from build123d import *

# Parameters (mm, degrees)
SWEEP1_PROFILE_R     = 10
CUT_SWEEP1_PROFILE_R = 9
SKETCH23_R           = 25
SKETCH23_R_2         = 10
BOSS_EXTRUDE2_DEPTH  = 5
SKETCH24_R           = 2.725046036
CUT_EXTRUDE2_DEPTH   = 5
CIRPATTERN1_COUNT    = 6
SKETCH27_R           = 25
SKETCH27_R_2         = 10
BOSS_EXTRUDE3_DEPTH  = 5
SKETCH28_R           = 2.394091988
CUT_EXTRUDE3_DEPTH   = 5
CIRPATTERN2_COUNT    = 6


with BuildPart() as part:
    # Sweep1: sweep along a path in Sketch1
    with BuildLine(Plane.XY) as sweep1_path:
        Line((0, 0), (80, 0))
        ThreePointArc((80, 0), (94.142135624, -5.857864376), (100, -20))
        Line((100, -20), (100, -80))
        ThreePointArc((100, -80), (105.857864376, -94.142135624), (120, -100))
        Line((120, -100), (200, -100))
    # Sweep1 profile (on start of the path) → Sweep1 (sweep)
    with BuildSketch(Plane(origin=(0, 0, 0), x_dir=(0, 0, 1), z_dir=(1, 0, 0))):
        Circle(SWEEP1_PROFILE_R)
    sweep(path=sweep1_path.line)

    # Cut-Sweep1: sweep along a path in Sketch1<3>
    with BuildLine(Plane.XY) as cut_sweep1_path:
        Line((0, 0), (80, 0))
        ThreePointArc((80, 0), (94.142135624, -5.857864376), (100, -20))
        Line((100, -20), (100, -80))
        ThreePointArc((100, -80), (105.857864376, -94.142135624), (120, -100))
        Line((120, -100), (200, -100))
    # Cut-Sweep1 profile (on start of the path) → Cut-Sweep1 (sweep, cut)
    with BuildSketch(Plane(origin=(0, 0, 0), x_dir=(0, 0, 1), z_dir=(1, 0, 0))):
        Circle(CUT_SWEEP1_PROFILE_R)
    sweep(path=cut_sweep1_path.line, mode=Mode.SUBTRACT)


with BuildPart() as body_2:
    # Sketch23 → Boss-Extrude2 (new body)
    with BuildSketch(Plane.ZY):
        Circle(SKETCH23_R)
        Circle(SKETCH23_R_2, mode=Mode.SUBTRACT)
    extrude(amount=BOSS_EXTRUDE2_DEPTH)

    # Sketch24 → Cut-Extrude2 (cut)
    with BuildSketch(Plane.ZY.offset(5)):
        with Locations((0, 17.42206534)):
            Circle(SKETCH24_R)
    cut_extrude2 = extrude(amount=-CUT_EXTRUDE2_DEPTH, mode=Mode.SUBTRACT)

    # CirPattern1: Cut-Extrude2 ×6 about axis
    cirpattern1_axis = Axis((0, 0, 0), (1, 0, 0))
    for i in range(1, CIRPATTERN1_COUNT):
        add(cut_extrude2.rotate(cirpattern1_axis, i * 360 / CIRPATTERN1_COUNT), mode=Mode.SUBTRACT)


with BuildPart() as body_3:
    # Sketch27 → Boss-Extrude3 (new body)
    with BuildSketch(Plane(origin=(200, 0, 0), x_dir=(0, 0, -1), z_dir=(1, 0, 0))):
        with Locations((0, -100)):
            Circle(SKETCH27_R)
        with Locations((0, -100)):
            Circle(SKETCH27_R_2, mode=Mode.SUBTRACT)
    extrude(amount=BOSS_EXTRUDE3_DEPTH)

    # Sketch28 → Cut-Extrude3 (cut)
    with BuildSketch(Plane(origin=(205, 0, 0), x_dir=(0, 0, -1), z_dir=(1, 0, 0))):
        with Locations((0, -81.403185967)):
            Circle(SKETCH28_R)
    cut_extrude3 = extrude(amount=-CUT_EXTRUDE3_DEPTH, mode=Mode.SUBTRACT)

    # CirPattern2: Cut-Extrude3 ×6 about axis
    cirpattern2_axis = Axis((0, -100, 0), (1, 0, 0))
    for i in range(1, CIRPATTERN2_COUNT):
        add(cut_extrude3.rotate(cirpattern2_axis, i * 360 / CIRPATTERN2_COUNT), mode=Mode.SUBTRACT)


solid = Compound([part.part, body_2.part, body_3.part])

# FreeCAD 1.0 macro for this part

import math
import FreeCAD as App
import Part
import Sketcher
from FreeCAD import Vector

doc = App.newDocument("Part")
body = doc.addObject("PartDesign::Body", "Body")

# Sketch on YZ plane
sketch1 = body.newObject("Sketcher::SketchObject", "Sketch")
sketch1.AttachmentSupport = (doc.getObject("YZ_Plane"), [""])
sketch1.MapMode = "FlatFace"
sketch1.addGeometry(Part.Circle(Vector(0, 0, 0), Vector(0, 0, 1), 10), False)
sketch1.addConstraint([
    Sketcher.Constraint("Coincident", 0, 3, -1, 1),
    Sketcher.Constraint("Diameter", 0, 20.0),
])

# Sketch on XY plane
sketch2 = body.newObject("Sketcher::SketchObject", "Sketch001")
sketch2.AttachmentSupport = (doc.getObject("XY_Plane"), [""])
sketch2.MapMode = "FlatFace"
sketch2.addGeometry([
    Part.LineSegment(Vector(0, 0, 0), Vector(80, 0, 0)),  # 0
    Part.ArcOfCircle(Part.Circle(Vector(80, -20, 0), Vector(0, 0, 1), 20), math.radians(0), math.radians(90)),  # 1
    Part.LineSegment(Vector(100, -20, 0), Vector(100, -80, 0)),  # 2
    Part.ArcOfCircle(Part.Circle(Vector(120, -80, 0), Vector(0, 0, 1), 20), math.radians(180), math.radians(270)),  # 3
    Part.LineSegment(Vector(120, -100, 0), Vector(200, -100, 0)),  # 4
], False)
sketch2.addConstraint([
    Sketcher.Constraint("Tangent", 0, 2, 1, 2),
    Sketcher.Constraint("Tangent", 1, 1, 2, 1),
    Sketcher.Constraint("Tangent", 2, 2, 3, 1),
    Sketcher.Constraint("Tangent", 3, 2, 4, 1),
    Sketcher.Constraint("Horizontal", 0),
    Sketcher.Constraint("Vertical", 2),
    Sketcher.Constraint("Horizontal", 4),
    Sketcher.Constraint("Coincident", 0, 1, -1, 1),
    Sketcher.Constraint("Equal", 1, 3),
    Sketcher.Constraint("Equal", 0, 4),
    Sketcher.Constraint("Radius", 1, 20.0),
    Sketcher.Constraint("DistanceX", 0, 1, 0, 2, 80.0),
    Sketcher.Constraint("DistanceY", 2, 2, 2, 1, 60.0),
])
doc.recompute()

additivepipe = body.newObject("PartDesign::AdditivePipe", "AdditivePipe")
additivepipe.Profile = sketch1
additivepipe.Spine = (sketch2, ["Edge1", "Edge2", "Edge3", "Edge4", "Edge5"])

# Sketch on YZ plane
sketch3 = body.newObject("Sketcher::SketchObject", "Sketch002")
sketch3.AttachmentSupport = (doc.getObject("YZ_Plane"), [""])
sketch3.MapMode = "FlatFace"
sketch3.addGeometry(Part.Circle(Vector(0, 0, 0), Vector(0, 0, 1), 9), False)
sketch3.addConstraint([
    Sketcher.Constraint("Coincident", 0, 3, -1, 1),
    Sketcher.Constraint("Diameter", 0, 18.0),
])

# Sketch on XY plane
sketch4 = body.newObject("Sketcher::SketchObject", "Sketch003")
sketch4.AttachmentSupport = (doc.getObject("XY_Plane"), [""])
sketch4.MapMode = "FlatFace"
sketch4.addGeometry([
    Part.LineSegment(Vector(0, 0, 0), Vector(80, 0, 0)),  # 0
    Part.ArcOfCircle(Part.Circle(Vector(80, -20, 0), Vector(0, 0, 1), 20), math.radians(0), math.radians(90)),  # 1
    Part.LineSegment(Vector(100, -20, 0), Vector(100, -80, 0)),  # 2
    Part.ArcOfCircle(Part.Circle(Vector(120, -80, 0), Vector(0, 0, 1), 20), math.radians(180), math.radians(270)),  # 3
    Part.LineSegment(Vector(120, -100, 0), Vector(200, -100, 0)),  # 4
], False)
sketch4.addConstraint([
    Sketcher.Constraint("Tangent", 0, 2, 1, 2),
    Sketcher.Constraint("Tangent", 1, 1, 2, 1),
    Sketcher.Constraint("Tangent", 2, 2, 3, 1),
    Sketcher.Constraint("Tangent", 3, 2, 4, 1),
    Sketcher.Constraint("Horizontal", 0),
    Sketcher.Constraint("Vertical", 2),
    Sketcher.Constraint("Horizontal", 4),
    Sketcher.Constraint("Coincident", 0, 1, -1, 1),
    Sketcher.Constraint("Equal", 1, 3),
    Sketcher.Constraint("Equal", 0, 4),
    Sketcher.Constraint("Radius", 1, 20.0),
    Sketcher.Constraint("DistanceX", 0, 1, 0, 2, 80.0),
    Sketcher.Constraint("DistanceY", 2, 2, 2, 1, 60.0),
])
doc.recompute()

subtractivepipe = body.newObject("PartDesign::SubtractivePipe", "SubtractivePipe")
subtractivepipe.Profile = sketch3
subtractivepipe.Spine = (sketch4, ["Edge1", "Edge2", "Edge3", "Edge4", "Edge5"])
body2 = doc.addObject("PartDesign::Body", "Body001")

# Sketch on YZ plane
sketch5 = body2.newObject("Sketcher::SketchObject", "Sketch004")
sketch5.AttachmentSupport = (doc.getObject("YZ_Plane001"), [""])
sketch5.MapMode = "FlatFace"
sketch5.addGeometry([
    Part.Circle(Vector(0, 0, 0), Vector(0, 0, 1), 25),
    Part.Circle(Vector(0, 0, 0), Vector(0, 0, 1), 10),
], False)
sketch5.addConstraint([
    Sketcher.Constraint("Coincident", 0, 3, -1, 1),
    Sketcher.Constraint("Coincident", 1, 3, -1, 1),
    Sketcher.Constraint("Diameter", 0, 50.0),
    Sketcher.Constraint("Diameter", 1, 20.0),
])
pad1 = body2.newObject("PartDesign::Pad", "Pad")
pad1.Profile = sketch5
pad1.Length = 5
pad1.Reversed = True

# Sketch on YZ plane
sketch6 = body2.newObject("Sketcher::SketchObject", "Sketch005")
sketch6.AttachmentSupport = (doc.getObject("YZ_Plane001"), [""])
sketch6.MapMode = "FlatFace"
sketch6.AttachmentOffset = App.Placement(Vector(0, 0, -5), App.Rotation())
sketch6.addGeometry(Part.Circle(Vector(17.4, 0, 0), Vector(0, 0, 1), 2.7), False)
sketch6.addConstraint([
    Sketcher.Constraint("PointOnObject", 0, 3, -1),
    Sketcher.Constraint("Diameter", 0, 5.450092),
    Sketcher.Constraint("DistanceX", -1, 1, 0, 3, 17.422065),
])
pocket1 = body2.newObject("PartDesign::Pocket", "Pocket")
pocket1.Profile = sketch6
pocket1.Length = 5
pocket1.Reversed = True
doc.recompute()

polarpattern = body2.newObject("PartDesign::PolarPattern", "PolarPattern")
polarpattern.Originals = [pocket1]
polarpattern.Axis = (doc.getObject("X_Axis001"), [""])
polarpattern.Angle = 360
polarpattern.Occurrences = 6
body2.Tip = polarpattern
body3 = doc.addObject("PartDesign::Body", "Body002")

# Sketch on YZ plane
sketch7 = body3.newObject("Sketcher::SketchObject", "Sketch006")
sketch7.AttachmentSupport = (doc.getObject("YZ_Plane002"), [""])
sketch7.MapMode = "FlatFace"
sketch7.AttachmentOffset = App.Placement(Vector(0, 0, 200), App.Rotation())
sketch7.addGeometry([
    Part.Circle(Vector(-100, 0, 0), Vector(0, 0, 1), 25),
    Part.Circle(Vector(-100, 0, 0), Vector(0, 0, 1), 10),
], False)
sketch7.addConstraint([
    Sketcher.Constraint("Coincident", 1, 3, 0, 3),
    Sketcher.Constraint("PointOnObject", 0, 3, -1),
    Sketcher.Constraint("Diameter", 0, 50.0),
    Sketcher.Constraint("Diameter", 1, 20.0),
    Sketcher.Constraint("DistanceX", 0, 3, -1, 1, 100.0),
])
pad2 = body3.newObject("PartDesign::Pad", "Pad001")
pad2.Profile = sketch7
pad2.Length = 5

# Sketch on YZ plane
sketch8 = body3.newObject("Sketcher::SketchObject", "Sketch007")
sketch8.AttachmentSupport = (doc.getObject("YZ_Plane002"), [""])
sketch8.MapMode = "FlatFace"
sketch8.AttachmentOffset = App.Placement(Vector(0, 0, 205), App.Rotation())
sketch8.addGeometry(Part.Circle(Vector(-81.4, 0, 0), Vector(0, 0, 1), 2.4), False)
sketch8.addConstraint([
    Sketcher.Constraint("PointOnObject", 0, 3, -1),
    Sketcher.Constraint("Diameter", 0, 4.788184),
    Sketcher.Constraint("DistanceX", 0, 3, -1, 1, 81.403186),
])
pocket2 = body3.newObject("PartDesign::Pocket", "Pocket001")
pocket2.Profile = sketch8
pocket2.Length = 5
doc.recompute()

datumline = body3.newObject("PartDesign::Line", "DatumLine")
datumline.Placement = App.Placement(Vector(0, -100, 0), App.Rotation(Vector(0, 0, 1), Vector(1, 0, 0)))
polarpattern2 = body3.newObject("PartDesign::PolarPattern", "PolarPattern001")
polarpattern2.Originals = [pocket2]
polarpattern2.Axis = (datumline, [""])
polarpattern2.Angle = 360
polarpattern2.Occurrences = 6
body3.Tip = polarpattern2

doc.recompute()
